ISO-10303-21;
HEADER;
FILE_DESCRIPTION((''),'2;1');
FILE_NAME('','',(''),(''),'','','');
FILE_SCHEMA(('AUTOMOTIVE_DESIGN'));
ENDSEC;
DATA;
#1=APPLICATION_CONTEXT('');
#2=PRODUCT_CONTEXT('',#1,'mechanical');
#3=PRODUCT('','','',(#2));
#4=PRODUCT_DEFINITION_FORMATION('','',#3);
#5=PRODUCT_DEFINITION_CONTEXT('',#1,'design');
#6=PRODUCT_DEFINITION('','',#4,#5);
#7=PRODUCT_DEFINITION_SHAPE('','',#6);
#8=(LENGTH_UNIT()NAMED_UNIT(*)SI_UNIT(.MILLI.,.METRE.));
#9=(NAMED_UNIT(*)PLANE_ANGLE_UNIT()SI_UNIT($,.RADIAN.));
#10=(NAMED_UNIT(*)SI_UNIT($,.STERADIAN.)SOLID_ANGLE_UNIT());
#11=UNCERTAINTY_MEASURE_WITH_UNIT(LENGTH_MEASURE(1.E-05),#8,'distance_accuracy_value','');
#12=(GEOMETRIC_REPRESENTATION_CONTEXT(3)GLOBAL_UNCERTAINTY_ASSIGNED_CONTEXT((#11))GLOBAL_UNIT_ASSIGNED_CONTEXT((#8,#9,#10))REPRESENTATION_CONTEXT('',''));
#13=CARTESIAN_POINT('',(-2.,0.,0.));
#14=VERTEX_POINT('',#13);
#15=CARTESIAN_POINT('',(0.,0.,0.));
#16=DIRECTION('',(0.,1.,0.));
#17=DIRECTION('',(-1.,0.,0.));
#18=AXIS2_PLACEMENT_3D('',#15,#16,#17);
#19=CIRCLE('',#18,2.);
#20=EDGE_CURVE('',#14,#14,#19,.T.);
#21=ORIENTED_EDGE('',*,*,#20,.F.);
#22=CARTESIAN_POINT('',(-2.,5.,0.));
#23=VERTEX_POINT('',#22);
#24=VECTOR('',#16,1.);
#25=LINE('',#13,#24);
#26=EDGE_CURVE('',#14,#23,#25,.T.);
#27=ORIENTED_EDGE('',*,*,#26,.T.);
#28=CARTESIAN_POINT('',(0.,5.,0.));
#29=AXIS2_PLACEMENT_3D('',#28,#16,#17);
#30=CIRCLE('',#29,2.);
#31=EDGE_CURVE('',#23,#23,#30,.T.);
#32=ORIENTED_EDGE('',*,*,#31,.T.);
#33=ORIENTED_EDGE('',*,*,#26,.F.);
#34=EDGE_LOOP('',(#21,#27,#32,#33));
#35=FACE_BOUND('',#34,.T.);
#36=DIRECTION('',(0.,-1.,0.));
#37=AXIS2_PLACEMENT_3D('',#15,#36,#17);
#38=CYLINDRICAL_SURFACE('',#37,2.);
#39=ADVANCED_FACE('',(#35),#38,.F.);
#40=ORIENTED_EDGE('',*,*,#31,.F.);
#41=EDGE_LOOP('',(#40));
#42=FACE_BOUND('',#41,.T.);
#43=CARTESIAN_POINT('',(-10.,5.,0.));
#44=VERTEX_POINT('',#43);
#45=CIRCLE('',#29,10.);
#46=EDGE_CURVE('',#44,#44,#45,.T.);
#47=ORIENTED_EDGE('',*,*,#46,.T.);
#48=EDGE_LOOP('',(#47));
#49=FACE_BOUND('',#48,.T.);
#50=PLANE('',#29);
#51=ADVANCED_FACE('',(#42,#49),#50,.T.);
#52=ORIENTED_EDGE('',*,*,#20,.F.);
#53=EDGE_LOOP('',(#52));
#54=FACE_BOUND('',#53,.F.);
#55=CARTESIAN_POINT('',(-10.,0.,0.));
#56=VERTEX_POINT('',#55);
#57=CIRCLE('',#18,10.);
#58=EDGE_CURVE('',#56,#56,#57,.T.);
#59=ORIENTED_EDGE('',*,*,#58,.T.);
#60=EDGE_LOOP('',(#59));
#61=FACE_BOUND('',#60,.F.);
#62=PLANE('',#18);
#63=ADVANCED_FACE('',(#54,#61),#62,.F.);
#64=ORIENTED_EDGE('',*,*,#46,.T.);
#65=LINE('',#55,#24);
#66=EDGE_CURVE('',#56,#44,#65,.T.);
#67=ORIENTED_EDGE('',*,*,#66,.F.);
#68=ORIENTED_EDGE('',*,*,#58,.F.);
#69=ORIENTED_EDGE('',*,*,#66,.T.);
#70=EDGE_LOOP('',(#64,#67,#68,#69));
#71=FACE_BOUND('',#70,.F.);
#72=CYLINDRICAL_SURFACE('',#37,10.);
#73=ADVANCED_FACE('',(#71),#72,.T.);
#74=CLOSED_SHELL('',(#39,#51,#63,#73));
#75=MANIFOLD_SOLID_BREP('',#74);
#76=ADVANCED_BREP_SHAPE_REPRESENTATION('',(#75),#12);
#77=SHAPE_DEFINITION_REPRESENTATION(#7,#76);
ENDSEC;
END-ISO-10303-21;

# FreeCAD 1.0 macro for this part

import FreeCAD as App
import Part
import Sketcher
Q = App.Units.Quantity

doc = App.newDocument("Part")
body = doc.addObject("PartDesign::Body", "Body")

# Sketch on XZ plane
sketch1 = doc.addObject("Sketcher::SketchObject", "Sketch")
body.addObject(sketch1)
sketch1.AttachmentSupport = (doc.XZ_Plane, [""])
sketch1.MapMode = "FlatFace"
sketch1.addGeometry(Part.Circle(App.Vector(0, 0, 0), App.Vector(0, 0, 1), 10), False)
sketch1.addGeometry(Part.Circle(App.Vector(0, 0, 0), App.Vector(0, 0, 1), 2), False)
sketch1.addConstraint(Sketcher.Constraint("Coincident", 0, 3, -1, 1))
sketch1.addConstraint(Sketcher.Constraint("Coincident", 1, 3, -1, 1))
sketch1.addConstraint(Sketcher.Constraint("Diameter", 0, Q("20 mm")))
sketch1.addConstraint(Sketcher.Constraint("Diameter", 1, Q("4 mm")))
pad1 = doc.addObject("PartDesign::Pad", "Pad")
body.addObject(pad1)
pad1.Profile = sketch1
pad1.Length = 5
pad1.Reversed = True

doc.recompute()
